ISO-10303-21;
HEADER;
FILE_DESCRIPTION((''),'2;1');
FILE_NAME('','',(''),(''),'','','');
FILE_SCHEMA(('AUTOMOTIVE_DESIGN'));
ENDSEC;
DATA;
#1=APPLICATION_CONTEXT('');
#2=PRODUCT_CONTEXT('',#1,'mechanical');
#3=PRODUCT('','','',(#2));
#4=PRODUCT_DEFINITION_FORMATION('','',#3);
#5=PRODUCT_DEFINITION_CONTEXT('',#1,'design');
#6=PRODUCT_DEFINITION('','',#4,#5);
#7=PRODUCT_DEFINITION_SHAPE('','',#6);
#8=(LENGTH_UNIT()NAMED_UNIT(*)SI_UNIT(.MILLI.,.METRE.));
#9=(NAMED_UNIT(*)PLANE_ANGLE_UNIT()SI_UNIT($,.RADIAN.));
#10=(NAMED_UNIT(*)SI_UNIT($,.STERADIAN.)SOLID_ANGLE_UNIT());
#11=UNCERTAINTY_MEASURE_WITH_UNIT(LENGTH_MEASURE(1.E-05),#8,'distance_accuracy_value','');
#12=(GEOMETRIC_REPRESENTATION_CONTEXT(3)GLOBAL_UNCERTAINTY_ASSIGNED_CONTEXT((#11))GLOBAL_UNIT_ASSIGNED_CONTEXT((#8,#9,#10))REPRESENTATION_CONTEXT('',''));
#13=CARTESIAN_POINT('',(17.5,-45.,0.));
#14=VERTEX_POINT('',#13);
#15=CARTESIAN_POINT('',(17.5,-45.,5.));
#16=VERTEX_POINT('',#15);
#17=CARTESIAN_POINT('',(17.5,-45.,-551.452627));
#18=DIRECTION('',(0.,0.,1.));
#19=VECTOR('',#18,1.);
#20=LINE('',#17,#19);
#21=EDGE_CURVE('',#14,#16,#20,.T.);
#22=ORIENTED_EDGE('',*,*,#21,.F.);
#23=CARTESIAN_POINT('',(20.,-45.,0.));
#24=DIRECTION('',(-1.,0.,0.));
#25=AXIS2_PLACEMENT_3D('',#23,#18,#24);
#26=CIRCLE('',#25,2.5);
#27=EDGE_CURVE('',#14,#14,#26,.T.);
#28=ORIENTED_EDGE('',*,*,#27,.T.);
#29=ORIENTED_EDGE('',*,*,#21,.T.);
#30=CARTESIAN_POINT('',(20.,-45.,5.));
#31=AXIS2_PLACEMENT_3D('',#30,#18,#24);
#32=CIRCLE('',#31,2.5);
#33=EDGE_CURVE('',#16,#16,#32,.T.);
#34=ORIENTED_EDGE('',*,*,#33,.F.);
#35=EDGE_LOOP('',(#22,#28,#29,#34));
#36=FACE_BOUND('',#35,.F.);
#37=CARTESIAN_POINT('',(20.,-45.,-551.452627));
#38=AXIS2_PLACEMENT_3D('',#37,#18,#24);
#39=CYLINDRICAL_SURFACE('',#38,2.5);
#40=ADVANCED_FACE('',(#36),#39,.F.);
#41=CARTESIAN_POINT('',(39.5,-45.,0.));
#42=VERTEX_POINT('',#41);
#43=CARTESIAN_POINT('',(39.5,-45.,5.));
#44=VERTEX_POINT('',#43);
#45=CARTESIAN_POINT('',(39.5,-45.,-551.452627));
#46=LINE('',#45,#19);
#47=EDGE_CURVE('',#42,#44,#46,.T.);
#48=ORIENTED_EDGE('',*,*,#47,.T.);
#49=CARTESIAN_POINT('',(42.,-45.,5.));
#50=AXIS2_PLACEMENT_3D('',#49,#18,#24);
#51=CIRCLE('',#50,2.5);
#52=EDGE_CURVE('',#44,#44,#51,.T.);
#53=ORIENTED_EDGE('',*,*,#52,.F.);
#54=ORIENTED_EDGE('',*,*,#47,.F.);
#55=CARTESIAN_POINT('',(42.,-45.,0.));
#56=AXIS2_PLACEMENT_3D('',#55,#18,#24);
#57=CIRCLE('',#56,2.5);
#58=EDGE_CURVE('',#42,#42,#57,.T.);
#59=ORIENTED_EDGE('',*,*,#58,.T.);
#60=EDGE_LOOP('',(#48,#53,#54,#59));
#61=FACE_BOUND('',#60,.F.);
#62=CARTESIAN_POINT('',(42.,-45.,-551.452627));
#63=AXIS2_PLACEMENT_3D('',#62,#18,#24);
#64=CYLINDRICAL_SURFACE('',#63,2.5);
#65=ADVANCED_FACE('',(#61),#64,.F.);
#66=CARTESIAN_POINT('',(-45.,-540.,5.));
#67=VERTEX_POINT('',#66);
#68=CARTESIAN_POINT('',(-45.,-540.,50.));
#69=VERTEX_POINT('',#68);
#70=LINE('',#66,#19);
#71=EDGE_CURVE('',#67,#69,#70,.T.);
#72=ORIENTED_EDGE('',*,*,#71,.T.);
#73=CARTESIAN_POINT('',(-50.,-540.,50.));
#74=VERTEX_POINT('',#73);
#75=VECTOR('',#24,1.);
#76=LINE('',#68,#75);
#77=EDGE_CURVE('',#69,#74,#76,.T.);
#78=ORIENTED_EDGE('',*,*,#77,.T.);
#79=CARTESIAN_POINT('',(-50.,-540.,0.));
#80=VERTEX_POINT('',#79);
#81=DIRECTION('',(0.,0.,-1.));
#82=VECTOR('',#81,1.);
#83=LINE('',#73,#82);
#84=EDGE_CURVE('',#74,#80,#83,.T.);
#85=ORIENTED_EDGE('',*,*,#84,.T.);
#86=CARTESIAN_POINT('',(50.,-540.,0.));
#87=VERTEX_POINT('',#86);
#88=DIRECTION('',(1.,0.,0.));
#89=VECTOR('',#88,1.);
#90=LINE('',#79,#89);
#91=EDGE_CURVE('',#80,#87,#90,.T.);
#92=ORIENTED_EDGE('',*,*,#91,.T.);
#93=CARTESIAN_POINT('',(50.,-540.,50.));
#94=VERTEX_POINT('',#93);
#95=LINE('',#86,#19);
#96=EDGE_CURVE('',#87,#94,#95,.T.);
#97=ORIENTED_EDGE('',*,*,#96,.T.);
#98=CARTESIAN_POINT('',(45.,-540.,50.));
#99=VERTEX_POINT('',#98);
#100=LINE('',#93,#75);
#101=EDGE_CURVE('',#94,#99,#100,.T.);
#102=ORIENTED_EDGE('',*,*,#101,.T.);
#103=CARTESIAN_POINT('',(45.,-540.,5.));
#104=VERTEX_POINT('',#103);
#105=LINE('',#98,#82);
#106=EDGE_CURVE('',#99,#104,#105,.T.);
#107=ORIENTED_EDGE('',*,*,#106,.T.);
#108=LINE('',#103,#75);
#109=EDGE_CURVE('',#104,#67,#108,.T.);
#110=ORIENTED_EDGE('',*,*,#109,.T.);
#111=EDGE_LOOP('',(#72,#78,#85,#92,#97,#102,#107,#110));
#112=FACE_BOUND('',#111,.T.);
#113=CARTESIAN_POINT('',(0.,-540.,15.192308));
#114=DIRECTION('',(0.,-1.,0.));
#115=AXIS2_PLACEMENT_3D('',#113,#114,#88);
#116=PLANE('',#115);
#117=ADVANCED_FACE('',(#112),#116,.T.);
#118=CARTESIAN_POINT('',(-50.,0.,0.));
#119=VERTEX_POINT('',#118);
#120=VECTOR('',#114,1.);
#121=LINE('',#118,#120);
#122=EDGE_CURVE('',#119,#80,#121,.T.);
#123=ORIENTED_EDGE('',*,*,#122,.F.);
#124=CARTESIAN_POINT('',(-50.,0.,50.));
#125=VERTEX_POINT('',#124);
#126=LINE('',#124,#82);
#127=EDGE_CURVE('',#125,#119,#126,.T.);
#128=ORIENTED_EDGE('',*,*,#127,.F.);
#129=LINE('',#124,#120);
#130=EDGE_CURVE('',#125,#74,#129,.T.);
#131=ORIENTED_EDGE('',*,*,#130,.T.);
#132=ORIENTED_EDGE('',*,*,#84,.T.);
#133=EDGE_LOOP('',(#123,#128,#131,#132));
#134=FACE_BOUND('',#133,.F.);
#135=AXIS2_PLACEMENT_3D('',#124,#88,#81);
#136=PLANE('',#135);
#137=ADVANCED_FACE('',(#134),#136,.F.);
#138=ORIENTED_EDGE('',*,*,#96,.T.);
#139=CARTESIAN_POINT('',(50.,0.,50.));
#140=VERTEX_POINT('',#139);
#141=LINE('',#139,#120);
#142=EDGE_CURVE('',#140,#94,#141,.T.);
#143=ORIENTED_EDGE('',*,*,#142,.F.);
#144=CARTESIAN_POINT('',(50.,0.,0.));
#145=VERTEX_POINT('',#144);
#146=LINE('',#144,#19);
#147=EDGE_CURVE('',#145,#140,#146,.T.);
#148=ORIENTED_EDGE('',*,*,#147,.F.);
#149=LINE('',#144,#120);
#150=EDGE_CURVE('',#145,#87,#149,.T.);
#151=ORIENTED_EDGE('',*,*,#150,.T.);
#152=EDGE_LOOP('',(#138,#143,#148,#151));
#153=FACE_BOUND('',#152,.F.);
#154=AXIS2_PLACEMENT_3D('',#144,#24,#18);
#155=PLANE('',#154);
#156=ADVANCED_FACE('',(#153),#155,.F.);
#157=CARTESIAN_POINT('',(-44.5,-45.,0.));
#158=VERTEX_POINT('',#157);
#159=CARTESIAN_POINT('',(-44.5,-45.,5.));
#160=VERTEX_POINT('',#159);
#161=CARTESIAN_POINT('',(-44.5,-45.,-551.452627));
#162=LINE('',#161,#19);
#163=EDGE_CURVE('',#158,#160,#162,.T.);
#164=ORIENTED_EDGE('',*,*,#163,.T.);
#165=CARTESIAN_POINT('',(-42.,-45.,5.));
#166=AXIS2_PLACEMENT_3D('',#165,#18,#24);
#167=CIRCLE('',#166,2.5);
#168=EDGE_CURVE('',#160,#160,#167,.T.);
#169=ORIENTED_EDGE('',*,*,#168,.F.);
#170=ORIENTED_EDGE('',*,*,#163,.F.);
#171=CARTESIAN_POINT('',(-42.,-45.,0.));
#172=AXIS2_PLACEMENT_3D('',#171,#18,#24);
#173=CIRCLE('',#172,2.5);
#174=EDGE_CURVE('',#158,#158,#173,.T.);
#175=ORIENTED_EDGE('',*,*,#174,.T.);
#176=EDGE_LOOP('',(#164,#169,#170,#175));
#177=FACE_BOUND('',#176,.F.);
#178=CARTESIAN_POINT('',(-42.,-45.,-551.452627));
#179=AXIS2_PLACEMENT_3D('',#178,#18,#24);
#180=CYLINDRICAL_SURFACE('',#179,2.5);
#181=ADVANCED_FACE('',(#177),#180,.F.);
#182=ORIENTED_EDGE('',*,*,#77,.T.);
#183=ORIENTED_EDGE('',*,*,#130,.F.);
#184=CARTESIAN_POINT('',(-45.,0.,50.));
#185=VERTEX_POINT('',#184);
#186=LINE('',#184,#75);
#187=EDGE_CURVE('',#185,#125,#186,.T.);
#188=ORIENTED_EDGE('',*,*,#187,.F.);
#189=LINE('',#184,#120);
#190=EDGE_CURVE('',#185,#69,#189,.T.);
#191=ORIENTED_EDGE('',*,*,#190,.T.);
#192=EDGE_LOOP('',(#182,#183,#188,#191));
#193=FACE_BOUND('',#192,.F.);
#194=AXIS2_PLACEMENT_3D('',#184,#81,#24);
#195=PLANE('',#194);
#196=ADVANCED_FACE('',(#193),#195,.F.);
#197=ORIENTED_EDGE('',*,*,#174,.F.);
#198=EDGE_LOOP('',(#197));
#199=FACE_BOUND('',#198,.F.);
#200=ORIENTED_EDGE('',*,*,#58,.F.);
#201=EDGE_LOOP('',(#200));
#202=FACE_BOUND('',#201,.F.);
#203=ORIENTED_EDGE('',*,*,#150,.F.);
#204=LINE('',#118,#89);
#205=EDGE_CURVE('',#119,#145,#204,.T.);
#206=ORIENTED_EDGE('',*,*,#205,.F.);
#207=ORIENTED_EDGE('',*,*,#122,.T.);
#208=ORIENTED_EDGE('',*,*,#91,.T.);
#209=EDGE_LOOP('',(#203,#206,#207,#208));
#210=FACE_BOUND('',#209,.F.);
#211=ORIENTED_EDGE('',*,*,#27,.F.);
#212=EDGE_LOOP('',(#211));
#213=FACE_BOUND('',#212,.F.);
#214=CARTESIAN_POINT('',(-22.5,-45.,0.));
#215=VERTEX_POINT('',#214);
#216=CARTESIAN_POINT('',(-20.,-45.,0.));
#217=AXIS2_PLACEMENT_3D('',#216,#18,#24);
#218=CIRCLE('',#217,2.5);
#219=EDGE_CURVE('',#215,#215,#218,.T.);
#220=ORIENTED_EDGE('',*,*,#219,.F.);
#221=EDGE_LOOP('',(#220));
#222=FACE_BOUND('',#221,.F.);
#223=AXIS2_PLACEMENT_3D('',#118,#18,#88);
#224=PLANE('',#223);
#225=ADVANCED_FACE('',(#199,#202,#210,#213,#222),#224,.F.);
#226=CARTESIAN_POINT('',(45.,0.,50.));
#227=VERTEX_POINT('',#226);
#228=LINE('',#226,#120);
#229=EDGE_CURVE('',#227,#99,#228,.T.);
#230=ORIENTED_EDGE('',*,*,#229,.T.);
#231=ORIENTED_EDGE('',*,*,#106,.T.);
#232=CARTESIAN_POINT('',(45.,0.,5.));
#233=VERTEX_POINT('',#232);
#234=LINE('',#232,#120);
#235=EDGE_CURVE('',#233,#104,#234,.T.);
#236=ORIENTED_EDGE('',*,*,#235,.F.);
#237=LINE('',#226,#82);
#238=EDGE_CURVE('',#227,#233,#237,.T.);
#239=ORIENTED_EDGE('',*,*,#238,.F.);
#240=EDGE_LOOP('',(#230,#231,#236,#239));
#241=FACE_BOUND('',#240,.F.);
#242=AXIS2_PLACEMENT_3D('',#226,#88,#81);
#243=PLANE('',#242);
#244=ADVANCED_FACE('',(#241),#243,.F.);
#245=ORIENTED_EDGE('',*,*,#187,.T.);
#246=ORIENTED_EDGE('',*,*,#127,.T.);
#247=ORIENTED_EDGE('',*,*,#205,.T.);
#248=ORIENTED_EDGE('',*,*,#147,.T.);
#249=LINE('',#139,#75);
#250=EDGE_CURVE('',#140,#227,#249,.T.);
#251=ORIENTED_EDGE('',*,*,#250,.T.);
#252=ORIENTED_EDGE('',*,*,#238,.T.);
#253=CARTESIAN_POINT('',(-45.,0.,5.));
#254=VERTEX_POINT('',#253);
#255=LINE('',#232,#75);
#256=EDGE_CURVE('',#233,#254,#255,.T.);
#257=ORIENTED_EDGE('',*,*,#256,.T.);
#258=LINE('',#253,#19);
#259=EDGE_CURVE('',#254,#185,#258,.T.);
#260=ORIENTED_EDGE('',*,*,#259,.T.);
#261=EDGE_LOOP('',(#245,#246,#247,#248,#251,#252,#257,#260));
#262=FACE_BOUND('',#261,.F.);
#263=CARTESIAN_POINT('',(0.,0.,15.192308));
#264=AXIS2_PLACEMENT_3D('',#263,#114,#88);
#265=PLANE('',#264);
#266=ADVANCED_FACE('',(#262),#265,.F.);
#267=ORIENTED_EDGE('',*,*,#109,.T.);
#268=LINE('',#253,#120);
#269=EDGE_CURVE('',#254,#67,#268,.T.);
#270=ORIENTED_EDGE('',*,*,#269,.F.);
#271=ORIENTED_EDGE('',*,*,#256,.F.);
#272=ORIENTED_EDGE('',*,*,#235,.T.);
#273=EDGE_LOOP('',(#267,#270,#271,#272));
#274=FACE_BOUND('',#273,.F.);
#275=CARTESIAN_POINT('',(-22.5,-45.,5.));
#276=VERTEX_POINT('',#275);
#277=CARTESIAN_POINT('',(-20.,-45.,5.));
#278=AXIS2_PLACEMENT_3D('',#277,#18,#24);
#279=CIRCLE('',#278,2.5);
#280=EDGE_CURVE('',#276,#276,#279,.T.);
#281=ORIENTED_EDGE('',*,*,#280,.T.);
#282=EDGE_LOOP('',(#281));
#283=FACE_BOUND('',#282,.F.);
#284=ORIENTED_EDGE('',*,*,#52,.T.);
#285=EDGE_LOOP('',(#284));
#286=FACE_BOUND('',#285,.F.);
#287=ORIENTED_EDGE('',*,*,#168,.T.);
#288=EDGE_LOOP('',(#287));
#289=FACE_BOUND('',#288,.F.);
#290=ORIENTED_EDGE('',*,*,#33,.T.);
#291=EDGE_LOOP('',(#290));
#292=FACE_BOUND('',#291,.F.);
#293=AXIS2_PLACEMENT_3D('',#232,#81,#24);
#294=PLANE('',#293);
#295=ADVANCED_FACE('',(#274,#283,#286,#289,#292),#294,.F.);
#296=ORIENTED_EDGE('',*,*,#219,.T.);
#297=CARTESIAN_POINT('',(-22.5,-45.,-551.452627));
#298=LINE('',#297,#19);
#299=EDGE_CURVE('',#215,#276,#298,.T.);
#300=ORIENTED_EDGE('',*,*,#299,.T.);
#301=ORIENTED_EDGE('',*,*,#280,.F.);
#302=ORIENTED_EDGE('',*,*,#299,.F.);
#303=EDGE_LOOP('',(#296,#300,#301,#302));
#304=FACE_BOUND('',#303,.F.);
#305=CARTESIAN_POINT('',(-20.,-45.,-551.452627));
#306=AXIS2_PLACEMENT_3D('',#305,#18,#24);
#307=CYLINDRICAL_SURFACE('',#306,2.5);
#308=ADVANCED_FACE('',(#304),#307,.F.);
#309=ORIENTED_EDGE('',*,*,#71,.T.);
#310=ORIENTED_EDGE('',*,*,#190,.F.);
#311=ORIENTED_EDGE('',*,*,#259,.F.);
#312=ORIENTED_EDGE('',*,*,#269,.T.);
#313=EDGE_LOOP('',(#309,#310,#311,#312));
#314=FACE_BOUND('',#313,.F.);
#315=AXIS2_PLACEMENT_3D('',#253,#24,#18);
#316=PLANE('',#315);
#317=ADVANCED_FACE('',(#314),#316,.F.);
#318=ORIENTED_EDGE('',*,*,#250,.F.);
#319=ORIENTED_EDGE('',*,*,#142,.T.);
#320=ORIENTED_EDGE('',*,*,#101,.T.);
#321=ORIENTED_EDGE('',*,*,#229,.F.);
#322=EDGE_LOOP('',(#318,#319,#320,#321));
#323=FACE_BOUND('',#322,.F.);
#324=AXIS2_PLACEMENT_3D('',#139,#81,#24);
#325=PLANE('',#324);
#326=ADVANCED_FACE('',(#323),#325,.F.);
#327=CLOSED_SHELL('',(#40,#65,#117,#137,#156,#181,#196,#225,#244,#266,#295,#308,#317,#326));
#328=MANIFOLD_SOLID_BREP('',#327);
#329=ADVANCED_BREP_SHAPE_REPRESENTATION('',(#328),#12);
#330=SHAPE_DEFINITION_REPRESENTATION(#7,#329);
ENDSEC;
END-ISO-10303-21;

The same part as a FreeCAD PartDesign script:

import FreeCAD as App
import Part
import Sketcher

doc = App.newDocument("Part")
params = doc.addObject("Spreadsheet::Sheet", "Params")
for row, (alias, value) in enumerate([
    ("sketch1_width", "100 mm"),
    ("sketch1_width2", "5 mm"),
    ("sketch1_height", "50 mm"),
    ("sketch1_height2", "45 mm"),
    ("pad1_length", "540 mm"),
    ("sketch2_diameter", "5 mm"),
    ("hole_diameter", "5 mm"),
], start=1):
    params.set(f"A{row}", alias)
    params.set(f"B{row}", "=" + value)
    params.setAlias(f"B{row}", alias)

body = doc.addObject("PartDesign::Body", "Body")

sketch1 = body.newObject("Sketcher::SketchObject", "Sketch")
sketch1.AttachmentSupport = (doc.getObject("XZ_Plane"), [""])
sketch1.MapMode = "FlatFace"
sketch1.addGeometry([
    Part.LineSegment(App.Vector(-50, 50, 0), App.Vector(-50, 0, 0)),
    Part.LineSegment(App.Vector(-50, 0, 0), App.Vector(50, 0, 0)),
    Part.LineSegment(App.Vector(50, 0, 0), App.Vector(50, 50, 0)),
    Part.LineSegment(App.Vector(50, 50, 0), App.Vector(45, 50, 0)),
    Part.LineSegment(App.Vector(45, 50, 0), App.Vector(45, 5, 0)),
    Part.LineSegment(App.Vector(45, 5, 0), App.Vector(-45, 5, 0)),
    Part.LineSegment(App.Vector(-45, 5, 0), App.Vector(-45, 50, 0)),
    Part.LineSegment(App.Vector(-45, 50, 0), App.Vector(-50, 50, 0)),
], False)
sketch1.addConstraint([
    Sketcher.Constraint("Coincident", 0, 2, 1, 1),
    Sketcher.Constraint("Coincident", 1, 2, 2, 1),
    Sketcher.Constraint("Coincident", 2, 2, 3, 1),
    Sketcher.Constraint("Coincident", 3, 2, 4, 1),
    Sketcher.Constraint("Coincident", 4, 2, 5, 1),
    Sketcher.Constraint("Coincident", 5, 2, 6, 1),
    Sketcher.Constraint("Coincident", 6, 2, 7, 1),
    Sketcher.Constraint("Coincident", 7, 2, 0, 1),
    Sketcher.Constraint("Vertical", 0),
    Sketcher.Constraint("Horizontal", 1),
    Sketcher.Constraint("Vertical", 2),
    Sketcher.Constraint("Horizontal", 3),
    Sketcher.Constraint("Vertical", 4),
    Sketcher.Constraint("Horizontal", 5),
    Sketcher.Constraint("Vertical", 6),
    Sketcher.Constraint("Horizontal", 7),
    Sketcher.Constraint("Symmetric", 0, 2, 1, 2, -1, 1),
    Sketcher.Constraint("Symmetric", 3, 2, 6, 2, -2),
    Sketcher.Constraint("DistanceX", 1, 1, 1, 2, 100.0),
    Sketcher.Constraint("DistanceX", 3, 2, 3, 1, 5.0),
    Sketcher.Constraint("DistanceY", 0, 2, 0, 1, 50.0),
    Sketcher.Constraint("DistanceY", 4, 2, 4, 1, 45.0),
])
sketch1.setExpression("Constraints[18]", "Params.sketch1_width")
sketch1.setExpression("Constraints[19]", "Params.sketch1_width2")
sketch1.setExpression("Constraints[20]", "Params.sketch1_height")
sketch1.setExpression("Constraints[21]", "Params.sketch1_height2")
pad1 = body.newObject("PartDesign::Pad", "Pad")
pad1.Profile = sketch1
pad1.setExpression("Length", "Params.pad1_length")

sketch2 = body.newObject("Sketcher::SketchObject", "Sketch001")
sketch2.AttachmentSupport = (doc.getObject("XY_Plane"), [""])
sketch2.MapMode = "FlatFace"
sketch2.addGeometry([
    Part.Circle(App.Vector(-42, -45, 0), App.Vector(0, 0, 1), 2.5),
    Part.Circle(App.Vector(42, -45, 0), App.Vector(0, 0, 1), 2.5),
    Part.Circle(App.Vector(-20, -45, 0), App.Vector(0, 0, 1), 2.5),
    Part.Circle(App.Vector(20, -45, 0), App.Vector(0, 0, 1), 2.5),
], False)
sketch2.addConstraint([
    Sketcher.Constraint("Equal", 0, 1),
    Sketcher.Constraint("Equal", 1, 2),
    Sketcher.Constraint("Equal", 2, 3),
    Sketcher.Constraint("Symmetric", 0, 3, 1, 3, -2),
    Sketcher.Constraint("Symmetric", 2, 3, 3, 3, -2),
    Sketcher.Constraint("Horizontal", 1, 3, 2, 3),
    Sketcher.Constraint("Diameter", 0, 5.0),
    Sketcher.Constraint("DistanceX", 0, 3, -1, 1, 42.0),
    Sketcher.Constraint("DistanceY", 0, 3, -1, 1, 45.0),
    Sketcher.Constraint("DistanceX", 2, 3, -1, 1, 20.0),
])
sketch2.setExpression("Constraints[6]", "Params.sketch2_diameter")
doc.recompute()
hole = body.newObject("PartDesign::Hole", "Hole")
hole.Profile = sketch2
hole.ThreadType = "None"
hole.setExpression("Diameter", "Params.hole_diameter")
hole.DepthType = "ThroughAll"
hole.Reversed = True

doc.recompute()
